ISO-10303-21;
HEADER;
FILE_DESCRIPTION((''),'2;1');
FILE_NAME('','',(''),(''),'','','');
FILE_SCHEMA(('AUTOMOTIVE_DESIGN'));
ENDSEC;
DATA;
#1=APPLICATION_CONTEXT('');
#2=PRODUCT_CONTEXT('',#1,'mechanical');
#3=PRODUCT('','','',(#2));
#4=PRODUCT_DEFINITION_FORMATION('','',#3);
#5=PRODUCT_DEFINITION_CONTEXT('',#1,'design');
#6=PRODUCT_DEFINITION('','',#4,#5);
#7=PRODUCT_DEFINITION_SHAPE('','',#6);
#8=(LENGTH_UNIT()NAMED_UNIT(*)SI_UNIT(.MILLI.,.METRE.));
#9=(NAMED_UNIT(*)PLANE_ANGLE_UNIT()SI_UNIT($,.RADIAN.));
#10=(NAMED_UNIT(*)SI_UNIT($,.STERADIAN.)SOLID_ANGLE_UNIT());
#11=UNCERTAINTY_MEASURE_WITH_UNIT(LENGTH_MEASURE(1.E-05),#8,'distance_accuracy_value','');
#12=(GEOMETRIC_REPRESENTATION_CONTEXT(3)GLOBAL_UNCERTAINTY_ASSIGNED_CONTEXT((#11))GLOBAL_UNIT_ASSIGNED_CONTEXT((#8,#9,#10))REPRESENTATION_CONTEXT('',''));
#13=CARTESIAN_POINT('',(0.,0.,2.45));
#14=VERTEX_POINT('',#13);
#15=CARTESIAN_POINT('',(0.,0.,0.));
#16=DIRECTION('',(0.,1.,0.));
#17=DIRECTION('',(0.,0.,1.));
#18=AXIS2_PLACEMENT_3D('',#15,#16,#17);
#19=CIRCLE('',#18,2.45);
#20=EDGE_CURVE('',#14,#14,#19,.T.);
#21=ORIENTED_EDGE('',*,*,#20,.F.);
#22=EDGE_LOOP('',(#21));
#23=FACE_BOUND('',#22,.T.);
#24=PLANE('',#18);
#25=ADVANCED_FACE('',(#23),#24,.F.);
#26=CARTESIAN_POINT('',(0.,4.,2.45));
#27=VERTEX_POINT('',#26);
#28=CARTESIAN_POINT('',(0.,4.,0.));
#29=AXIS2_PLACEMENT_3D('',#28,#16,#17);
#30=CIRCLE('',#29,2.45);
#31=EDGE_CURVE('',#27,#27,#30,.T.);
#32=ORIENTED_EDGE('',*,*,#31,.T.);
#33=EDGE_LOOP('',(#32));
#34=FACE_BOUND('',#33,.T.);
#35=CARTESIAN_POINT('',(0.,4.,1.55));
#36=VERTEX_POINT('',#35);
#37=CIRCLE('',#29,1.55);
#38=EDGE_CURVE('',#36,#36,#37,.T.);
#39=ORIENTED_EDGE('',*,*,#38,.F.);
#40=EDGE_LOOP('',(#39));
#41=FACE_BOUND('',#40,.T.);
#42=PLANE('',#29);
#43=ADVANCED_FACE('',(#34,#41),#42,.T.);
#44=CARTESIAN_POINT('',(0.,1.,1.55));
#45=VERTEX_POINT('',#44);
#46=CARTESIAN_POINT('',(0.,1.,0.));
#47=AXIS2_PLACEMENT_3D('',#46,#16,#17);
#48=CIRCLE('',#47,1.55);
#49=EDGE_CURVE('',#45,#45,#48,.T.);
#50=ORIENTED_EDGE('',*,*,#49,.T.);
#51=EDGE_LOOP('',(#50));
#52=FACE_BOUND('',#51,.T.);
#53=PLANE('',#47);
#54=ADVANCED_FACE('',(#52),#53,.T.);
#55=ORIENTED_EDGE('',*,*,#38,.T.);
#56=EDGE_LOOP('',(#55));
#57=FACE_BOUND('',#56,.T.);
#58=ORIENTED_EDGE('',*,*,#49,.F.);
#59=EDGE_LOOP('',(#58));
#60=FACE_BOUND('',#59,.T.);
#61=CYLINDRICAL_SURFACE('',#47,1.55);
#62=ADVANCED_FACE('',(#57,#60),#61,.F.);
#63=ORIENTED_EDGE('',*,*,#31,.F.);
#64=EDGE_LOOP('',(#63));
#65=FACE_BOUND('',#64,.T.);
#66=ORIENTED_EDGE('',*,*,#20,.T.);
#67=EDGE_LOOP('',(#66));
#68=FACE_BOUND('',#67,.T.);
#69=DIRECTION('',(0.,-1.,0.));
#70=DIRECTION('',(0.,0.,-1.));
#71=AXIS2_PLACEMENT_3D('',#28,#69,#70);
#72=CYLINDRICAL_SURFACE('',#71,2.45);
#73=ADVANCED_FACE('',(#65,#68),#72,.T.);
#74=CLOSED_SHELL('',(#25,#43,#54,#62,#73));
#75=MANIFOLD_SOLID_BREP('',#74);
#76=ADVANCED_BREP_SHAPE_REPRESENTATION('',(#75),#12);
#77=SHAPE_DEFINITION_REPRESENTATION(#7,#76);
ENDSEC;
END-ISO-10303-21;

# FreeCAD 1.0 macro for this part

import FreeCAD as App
import Part
import Sketcher

doc = App.newDocument("Part")
body = doc.addObject("PartDesign::Body", "Body")

# Sketch on XZ plane
sketch1 = body.newObject("Sketcher::SketchObject", "Sketch")
sketch1.AttachmentSupport = (doc.getObject("XZ_Plane"), [""])
sketch1.MapMode = "FlatFace"
sketch1.addGeometry(Part.Circle(App.Vector(0, 0, 0), App.Vector(0, 0, 1), 2.5), False)
sketch1.addConstraint([
    Sketcher.Constraint("Coincident", 0, 3, -1, 1),
    Sketcher.Constraint("Diameter", 0, 4.9),
])
pad1 = body.newObject("PartDesign::Pad", "Pad")
pad1.Profile = sketch1
pad1.Length = 4
pad1.Reversed = True

# Sketch on XZ plane
sketch2 = body.newObject("Sketcher::SketchObject", "Sketch001")
sketch2.AttachmentSupport = (doc.getObject("XZ_Plane"), [""])
sketch2.MapMode = "FlatFace"
sketch2.AttachmentOffset = App.Placement(App.Vector(0, 0, -4), App.Rotation())
sketch2.addGeometry(Part.Circle(App.Vector(0, 0, 0), App.Vector(0, 0, 1), 1.6), False)
sketch2.addConstraint([
    Sketcher.Constraint("Coincident", 0, 3, -1, 1),
    Sketcher.Constraint("Diameter", 0, 3.1),
])
pocket1 = body.newObject("PartDesign::Pocket", "Pocket")
pocket1.Profile = sketch2
pocket1.Length = 3
pocket1.Reversed = True

doc.recompute()
